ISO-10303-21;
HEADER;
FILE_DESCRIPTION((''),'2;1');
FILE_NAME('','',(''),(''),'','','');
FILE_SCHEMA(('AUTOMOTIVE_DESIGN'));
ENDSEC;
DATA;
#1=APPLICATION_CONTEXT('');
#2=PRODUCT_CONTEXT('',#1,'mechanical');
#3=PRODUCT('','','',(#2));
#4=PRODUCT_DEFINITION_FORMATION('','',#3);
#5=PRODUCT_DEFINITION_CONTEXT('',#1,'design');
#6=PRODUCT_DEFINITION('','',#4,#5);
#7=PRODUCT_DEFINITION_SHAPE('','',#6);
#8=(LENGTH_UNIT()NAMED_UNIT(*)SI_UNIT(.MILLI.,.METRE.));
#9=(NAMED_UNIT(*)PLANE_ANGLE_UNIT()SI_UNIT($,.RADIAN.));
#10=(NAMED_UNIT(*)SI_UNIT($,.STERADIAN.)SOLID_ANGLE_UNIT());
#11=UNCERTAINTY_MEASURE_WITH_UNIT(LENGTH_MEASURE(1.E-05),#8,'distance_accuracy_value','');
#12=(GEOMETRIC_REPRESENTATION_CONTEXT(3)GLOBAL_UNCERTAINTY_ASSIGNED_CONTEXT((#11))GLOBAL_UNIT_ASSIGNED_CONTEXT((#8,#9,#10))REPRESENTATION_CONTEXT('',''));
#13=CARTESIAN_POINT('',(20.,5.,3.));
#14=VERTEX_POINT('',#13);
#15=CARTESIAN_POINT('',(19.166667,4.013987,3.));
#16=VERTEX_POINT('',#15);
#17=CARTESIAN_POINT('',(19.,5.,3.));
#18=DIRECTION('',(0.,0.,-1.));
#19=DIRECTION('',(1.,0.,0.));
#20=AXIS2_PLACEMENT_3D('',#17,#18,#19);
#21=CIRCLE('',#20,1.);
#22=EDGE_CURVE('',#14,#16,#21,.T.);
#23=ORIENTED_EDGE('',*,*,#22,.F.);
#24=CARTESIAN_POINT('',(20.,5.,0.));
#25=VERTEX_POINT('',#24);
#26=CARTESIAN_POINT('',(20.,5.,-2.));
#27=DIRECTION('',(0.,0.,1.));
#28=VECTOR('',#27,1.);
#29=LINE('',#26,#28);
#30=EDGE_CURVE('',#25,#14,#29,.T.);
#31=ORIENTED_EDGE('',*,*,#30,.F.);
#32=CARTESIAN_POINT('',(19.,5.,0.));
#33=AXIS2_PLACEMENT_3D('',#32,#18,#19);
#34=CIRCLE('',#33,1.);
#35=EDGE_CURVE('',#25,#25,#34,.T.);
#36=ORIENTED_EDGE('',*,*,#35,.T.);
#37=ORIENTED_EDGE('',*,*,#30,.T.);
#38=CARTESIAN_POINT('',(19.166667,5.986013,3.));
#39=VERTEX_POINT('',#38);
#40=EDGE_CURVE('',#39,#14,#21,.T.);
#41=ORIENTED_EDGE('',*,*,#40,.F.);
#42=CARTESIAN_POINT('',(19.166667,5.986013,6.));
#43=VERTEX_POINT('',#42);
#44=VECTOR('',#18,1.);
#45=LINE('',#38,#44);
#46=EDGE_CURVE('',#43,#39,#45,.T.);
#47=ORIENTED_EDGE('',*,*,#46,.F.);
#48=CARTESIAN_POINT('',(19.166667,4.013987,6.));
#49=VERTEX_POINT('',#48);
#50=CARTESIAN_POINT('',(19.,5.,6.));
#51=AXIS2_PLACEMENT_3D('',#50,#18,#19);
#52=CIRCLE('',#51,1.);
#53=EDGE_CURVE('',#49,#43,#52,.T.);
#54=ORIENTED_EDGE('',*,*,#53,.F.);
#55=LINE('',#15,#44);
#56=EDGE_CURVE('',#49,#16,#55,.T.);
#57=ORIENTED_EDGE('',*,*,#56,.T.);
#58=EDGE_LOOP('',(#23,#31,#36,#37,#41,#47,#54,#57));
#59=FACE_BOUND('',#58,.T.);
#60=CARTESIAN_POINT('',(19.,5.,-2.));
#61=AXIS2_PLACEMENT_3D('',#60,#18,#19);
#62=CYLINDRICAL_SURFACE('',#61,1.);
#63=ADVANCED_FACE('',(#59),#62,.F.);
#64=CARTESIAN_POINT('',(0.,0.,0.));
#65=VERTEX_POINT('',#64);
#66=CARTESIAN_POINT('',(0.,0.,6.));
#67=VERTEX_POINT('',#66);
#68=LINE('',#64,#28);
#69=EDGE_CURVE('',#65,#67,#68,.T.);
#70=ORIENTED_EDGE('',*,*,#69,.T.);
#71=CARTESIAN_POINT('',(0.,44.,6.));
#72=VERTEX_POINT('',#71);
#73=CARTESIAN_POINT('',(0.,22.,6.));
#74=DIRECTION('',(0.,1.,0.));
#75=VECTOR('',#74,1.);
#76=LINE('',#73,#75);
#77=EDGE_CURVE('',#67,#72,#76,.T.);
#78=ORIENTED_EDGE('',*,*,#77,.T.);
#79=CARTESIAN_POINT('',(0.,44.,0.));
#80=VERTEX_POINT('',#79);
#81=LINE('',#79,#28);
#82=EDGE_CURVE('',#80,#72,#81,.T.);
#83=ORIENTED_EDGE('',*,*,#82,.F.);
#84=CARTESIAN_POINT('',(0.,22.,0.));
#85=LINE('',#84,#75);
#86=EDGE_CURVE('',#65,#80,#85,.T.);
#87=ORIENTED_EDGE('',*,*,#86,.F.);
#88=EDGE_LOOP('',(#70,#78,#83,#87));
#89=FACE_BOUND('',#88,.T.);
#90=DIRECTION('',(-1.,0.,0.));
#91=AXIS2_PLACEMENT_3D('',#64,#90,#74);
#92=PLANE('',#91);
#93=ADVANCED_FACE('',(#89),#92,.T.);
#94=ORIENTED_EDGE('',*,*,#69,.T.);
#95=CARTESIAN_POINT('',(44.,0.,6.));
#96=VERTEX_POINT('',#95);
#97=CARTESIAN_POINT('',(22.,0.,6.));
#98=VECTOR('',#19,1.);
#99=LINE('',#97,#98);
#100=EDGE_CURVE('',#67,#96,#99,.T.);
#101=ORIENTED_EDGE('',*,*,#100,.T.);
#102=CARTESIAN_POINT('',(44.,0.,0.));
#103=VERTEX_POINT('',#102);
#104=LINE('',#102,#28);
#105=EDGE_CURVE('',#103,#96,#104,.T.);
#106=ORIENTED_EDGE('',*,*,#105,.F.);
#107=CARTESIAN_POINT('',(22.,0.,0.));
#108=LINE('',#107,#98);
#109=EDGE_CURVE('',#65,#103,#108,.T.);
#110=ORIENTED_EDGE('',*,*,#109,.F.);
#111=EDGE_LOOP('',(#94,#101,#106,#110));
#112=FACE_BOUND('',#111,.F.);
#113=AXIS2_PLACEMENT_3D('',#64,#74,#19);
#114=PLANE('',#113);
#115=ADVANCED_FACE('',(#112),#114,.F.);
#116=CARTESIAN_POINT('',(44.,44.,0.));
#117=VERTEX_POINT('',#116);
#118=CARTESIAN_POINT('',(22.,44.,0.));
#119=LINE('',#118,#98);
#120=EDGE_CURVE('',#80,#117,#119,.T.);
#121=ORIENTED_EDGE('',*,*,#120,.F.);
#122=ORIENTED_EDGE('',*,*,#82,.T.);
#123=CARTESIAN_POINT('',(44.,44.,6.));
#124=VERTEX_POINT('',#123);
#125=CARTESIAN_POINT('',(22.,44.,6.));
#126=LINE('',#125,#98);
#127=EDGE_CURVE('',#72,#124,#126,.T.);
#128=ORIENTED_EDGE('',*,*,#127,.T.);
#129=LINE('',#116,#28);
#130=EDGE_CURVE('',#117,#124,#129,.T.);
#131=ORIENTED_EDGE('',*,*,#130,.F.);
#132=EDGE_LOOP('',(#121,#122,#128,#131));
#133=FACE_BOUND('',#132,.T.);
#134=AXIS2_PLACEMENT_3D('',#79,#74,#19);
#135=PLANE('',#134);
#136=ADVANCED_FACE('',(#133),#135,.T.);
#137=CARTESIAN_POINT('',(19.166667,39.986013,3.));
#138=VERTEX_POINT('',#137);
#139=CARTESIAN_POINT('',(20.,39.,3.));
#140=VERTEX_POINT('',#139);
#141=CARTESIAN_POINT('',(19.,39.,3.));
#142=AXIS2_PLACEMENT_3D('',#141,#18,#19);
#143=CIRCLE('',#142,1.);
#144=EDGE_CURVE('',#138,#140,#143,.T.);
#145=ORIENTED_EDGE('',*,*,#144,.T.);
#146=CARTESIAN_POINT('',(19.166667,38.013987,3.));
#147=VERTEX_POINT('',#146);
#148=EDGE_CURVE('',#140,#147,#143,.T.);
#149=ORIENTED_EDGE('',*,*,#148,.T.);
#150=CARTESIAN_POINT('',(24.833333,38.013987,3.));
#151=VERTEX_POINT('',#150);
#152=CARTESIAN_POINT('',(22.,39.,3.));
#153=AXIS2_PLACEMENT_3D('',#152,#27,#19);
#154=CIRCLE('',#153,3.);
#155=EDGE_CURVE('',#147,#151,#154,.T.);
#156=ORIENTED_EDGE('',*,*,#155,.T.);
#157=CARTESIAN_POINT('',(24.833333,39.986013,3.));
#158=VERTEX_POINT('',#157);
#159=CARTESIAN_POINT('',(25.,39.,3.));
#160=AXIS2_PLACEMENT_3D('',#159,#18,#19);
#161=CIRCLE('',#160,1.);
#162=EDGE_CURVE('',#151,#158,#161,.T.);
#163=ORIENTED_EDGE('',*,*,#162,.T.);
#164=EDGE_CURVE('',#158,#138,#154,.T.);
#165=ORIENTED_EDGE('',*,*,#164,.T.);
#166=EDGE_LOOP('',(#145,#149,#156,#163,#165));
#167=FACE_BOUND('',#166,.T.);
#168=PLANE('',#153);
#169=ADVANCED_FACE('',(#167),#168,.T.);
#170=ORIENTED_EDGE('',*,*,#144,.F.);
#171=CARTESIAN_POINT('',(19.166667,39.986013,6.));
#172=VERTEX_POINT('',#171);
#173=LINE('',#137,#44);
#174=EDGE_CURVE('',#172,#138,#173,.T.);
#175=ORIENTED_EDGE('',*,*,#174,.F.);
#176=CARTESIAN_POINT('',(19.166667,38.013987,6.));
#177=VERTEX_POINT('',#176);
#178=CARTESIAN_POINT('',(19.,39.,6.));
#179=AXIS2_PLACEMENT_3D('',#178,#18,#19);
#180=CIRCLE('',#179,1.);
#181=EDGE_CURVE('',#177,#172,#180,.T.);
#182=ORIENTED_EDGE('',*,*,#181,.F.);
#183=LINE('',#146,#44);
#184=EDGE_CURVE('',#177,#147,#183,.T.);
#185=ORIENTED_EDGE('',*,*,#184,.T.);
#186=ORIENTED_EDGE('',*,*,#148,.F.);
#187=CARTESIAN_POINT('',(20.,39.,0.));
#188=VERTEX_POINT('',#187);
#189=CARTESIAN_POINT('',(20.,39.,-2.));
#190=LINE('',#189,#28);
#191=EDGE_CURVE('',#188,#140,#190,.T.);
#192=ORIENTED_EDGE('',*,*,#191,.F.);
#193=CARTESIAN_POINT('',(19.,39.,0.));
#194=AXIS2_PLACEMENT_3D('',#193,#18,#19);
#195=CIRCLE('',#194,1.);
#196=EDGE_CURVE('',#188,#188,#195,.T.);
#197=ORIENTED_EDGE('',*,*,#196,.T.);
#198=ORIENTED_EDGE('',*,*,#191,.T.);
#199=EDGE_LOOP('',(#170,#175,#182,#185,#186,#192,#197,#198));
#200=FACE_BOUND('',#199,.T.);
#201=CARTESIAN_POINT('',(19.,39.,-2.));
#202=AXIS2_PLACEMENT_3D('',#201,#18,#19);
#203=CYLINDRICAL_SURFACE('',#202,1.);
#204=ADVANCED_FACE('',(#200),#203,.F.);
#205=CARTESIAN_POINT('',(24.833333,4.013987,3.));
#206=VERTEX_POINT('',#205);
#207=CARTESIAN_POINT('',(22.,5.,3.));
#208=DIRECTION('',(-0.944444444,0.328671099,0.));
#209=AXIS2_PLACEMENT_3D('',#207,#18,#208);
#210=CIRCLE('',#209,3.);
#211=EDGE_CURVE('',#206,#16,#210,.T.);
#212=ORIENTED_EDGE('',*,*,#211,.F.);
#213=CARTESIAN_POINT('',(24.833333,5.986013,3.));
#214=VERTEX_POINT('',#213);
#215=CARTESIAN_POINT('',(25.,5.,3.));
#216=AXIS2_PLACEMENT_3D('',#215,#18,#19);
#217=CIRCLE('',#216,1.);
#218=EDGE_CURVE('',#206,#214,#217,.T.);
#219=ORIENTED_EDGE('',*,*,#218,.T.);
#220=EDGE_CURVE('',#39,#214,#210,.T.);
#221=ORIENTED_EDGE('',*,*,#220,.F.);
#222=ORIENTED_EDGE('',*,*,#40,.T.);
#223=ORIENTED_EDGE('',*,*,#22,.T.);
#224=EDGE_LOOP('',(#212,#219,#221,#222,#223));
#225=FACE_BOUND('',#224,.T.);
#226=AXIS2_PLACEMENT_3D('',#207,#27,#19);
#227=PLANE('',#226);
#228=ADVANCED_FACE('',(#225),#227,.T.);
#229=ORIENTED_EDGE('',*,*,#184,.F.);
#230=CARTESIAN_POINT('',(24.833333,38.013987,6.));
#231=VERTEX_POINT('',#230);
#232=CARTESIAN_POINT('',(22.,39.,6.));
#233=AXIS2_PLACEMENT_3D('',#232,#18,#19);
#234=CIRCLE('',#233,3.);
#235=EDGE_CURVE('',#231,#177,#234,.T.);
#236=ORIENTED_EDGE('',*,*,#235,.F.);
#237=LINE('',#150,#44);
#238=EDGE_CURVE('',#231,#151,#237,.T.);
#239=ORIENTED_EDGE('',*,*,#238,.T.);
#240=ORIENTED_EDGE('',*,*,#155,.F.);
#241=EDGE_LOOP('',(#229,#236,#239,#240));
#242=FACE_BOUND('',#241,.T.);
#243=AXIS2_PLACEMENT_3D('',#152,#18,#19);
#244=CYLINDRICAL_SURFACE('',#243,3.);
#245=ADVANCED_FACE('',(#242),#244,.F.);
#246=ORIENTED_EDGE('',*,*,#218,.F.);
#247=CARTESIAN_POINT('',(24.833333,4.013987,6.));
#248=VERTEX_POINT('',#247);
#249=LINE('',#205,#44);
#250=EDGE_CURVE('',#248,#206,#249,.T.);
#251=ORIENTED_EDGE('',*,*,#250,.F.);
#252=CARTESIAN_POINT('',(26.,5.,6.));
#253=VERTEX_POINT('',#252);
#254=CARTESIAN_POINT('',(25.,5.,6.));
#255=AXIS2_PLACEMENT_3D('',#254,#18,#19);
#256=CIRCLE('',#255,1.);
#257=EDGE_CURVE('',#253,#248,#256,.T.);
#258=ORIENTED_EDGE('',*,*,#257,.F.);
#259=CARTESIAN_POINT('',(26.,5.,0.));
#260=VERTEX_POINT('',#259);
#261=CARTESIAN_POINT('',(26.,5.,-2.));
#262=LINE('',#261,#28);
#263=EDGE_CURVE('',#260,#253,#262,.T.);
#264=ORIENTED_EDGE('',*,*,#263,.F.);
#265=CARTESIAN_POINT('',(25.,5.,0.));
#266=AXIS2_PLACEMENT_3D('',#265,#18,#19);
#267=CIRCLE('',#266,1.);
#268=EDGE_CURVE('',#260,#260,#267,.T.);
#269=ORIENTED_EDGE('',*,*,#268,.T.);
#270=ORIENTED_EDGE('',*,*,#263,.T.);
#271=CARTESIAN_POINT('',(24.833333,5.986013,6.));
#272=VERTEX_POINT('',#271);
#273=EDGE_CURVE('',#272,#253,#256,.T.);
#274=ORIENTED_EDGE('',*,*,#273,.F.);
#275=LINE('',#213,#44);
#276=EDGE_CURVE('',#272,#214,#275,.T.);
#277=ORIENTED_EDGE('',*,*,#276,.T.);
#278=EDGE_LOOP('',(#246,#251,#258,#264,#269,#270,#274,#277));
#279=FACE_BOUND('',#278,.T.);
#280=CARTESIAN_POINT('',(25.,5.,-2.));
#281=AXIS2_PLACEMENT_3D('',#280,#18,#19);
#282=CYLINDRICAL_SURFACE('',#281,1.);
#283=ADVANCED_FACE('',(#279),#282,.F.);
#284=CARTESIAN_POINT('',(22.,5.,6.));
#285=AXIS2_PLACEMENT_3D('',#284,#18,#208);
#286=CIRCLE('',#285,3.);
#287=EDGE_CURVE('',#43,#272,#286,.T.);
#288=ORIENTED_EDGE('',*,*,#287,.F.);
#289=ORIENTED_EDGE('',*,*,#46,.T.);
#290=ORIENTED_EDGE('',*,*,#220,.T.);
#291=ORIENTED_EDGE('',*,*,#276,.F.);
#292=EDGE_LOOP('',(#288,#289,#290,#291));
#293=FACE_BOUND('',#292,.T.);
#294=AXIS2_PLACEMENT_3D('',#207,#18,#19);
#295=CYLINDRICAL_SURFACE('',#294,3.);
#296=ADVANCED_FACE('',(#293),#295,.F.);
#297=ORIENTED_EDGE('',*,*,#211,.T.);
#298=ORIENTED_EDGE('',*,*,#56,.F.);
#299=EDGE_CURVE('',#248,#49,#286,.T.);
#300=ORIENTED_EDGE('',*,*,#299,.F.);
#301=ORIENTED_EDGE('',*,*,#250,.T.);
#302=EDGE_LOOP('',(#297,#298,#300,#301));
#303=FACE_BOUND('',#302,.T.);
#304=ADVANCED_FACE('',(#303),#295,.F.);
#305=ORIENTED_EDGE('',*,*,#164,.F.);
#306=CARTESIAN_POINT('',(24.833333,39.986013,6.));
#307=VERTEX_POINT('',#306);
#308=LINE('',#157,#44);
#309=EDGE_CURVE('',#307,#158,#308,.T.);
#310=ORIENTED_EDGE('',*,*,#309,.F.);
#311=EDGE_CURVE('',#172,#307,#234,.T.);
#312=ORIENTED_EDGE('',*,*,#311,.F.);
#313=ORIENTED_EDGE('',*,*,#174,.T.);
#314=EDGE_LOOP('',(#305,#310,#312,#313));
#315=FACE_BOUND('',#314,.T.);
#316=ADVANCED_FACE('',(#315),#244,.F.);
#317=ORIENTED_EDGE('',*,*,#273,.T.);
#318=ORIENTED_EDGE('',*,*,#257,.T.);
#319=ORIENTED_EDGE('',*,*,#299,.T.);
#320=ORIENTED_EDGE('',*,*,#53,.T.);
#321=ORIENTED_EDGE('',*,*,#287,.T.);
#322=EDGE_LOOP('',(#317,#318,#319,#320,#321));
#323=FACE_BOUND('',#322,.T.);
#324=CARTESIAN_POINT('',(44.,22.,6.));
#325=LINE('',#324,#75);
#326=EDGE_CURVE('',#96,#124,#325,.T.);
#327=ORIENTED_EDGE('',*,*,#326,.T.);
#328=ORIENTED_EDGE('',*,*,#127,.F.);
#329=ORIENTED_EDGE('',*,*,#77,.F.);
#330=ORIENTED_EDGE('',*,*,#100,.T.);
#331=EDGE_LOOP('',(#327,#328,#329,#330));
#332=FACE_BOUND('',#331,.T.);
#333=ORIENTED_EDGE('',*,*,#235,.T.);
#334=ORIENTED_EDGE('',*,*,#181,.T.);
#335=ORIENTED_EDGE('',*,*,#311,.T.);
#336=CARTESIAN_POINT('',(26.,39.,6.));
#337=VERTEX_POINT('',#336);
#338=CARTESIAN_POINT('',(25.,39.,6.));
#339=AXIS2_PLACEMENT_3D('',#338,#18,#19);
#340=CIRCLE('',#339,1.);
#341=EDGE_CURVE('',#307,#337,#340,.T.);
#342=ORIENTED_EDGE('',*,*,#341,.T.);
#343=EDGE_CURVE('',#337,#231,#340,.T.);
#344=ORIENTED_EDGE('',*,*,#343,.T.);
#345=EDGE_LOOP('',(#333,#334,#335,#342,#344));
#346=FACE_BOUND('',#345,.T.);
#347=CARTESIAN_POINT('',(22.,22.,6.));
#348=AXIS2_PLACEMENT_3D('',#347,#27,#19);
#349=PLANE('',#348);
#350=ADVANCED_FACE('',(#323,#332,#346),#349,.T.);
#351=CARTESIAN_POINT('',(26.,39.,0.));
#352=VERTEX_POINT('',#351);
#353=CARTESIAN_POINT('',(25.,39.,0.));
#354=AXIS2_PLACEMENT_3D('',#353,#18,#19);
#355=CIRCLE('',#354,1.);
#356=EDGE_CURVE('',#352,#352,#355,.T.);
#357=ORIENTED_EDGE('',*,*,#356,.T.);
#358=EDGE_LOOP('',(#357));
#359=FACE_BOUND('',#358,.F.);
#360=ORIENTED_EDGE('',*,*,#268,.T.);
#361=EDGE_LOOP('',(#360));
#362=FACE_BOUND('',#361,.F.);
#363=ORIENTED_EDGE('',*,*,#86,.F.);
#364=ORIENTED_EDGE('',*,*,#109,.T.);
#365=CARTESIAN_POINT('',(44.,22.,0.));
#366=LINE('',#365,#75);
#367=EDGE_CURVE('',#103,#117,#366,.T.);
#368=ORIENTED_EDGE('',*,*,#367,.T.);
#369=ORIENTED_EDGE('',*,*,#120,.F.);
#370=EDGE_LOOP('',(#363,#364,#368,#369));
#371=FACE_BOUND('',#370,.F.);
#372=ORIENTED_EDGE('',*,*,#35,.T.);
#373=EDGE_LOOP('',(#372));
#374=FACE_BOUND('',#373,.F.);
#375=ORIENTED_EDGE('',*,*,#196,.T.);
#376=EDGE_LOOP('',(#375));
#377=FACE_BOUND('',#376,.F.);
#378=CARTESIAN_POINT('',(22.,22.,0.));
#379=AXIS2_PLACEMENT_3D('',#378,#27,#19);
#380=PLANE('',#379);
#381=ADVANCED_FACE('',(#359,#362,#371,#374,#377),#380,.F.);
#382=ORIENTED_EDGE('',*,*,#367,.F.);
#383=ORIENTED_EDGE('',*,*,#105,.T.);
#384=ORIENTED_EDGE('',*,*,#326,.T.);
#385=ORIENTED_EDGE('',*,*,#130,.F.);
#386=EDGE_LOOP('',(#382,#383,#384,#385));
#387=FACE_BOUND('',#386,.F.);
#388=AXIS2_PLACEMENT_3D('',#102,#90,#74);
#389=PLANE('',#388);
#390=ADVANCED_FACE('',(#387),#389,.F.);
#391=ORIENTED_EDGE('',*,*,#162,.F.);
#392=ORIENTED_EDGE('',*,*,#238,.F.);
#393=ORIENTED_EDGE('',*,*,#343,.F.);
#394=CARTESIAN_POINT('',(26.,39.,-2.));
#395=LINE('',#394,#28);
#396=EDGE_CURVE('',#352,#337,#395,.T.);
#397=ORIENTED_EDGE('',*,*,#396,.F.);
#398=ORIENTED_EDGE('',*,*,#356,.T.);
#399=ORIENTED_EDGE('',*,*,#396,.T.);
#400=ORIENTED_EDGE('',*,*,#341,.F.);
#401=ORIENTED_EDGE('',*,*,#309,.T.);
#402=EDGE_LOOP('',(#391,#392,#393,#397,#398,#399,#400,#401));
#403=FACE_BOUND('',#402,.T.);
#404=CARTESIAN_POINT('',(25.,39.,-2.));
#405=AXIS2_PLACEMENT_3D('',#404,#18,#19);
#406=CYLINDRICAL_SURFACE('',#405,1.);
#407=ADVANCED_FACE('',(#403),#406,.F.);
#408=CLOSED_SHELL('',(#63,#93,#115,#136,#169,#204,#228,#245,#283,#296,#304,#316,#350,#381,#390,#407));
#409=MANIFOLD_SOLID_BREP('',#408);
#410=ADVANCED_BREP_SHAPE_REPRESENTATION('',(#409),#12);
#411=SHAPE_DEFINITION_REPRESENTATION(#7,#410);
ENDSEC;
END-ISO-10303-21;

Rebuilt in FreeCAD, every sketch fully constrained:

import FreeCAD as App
import Part
import Sketcher

V = App.Vector
Q = App.Units.Quantity


def add_polygon(sketch, points):
    """Adds a closed chain of lines whose ends are joined by coincident constraints."""
    first, n = sketch.GeometryCount, len(points)
    for a, b in zip(points, points[1:] + points[:1]):
        sketch.addGeometry(Part.LineSegment(App.Vector(*a, 0), App.Vector(*b, 0)), False)
    for i in range(n):
        sketch.addConstraint(Sketcher.Constraint("Coincident", first + i, 2, first + (i + 1) % n, 1))

doc = App.newDocument("Part")
body = doc.addObject("PartDesign::Body", "Body")

# Sketch on XY plane
sketch1 = body.newObject("Sketcher::SketchObject", "Sketch")
sketch1.AttachmentSupport = (doc.getObject("XY_Plane"), [""])
sketch1.MapMode = "FlatFace"
sketch1.AttachmentOffset = App.Placement(V(0, 0, -2), App.Rotation())
sketch1.addGeometry(Part.Circle(V(19, 39, 0), V(0, 0, 1), 1), False)
sketch1.addConstraint([
    Sketcher.Constraint("Diameter", 0, Q("2 mm")),
    Sketcher.Constraint("DistanceX", -1, 1, 0, 3, Q("19 mm")),
    Sketcher.Constraint("DistanceY", -1, 1, 0, 3, Q("39 mm")),
])
pad1 = body.newObject("PartDesign::Pad", "Pad")
pad1.Profile = sketch1
pad1.Length = 10
body2 = doc.addObject("PartDesign::Body", "Body001")

# Sketch on XY plane
sketch2 = body2.newObject("Sketcher::SketchObject", "Sketch001")
sketch2.AttachmentSupport = (doc.getObject("XY_Plane001"), [""])
sketch2.MapMode = "FlatFace"
sketch2.AttachmentOffset = App.Placement(V(0, 0, -2), App.Rotation())
sketch2.addGeometry(Part.Circle(V(25, 39, 0), V(0, 0, 1), 1), False)
sketch2.addConstraint([
    Sketcher.Constraint("Diameter", 0, Q("2 mm")),
    Sketcher.Constraint("DistanceX", -1, 1, 0, 3, Q("25 mm")),
    Sketcher.Constraint("DistanceY", -1, 1, 0, 3, Q("39 mm")),
])
pad2 = body2.newObject("PartDesign::Pad", "Pad001")
pad2.Profile = sketch2
pad2.Length = 10
body3 = doc.addObject("PartDesign::Body", "Body002")

# Sketch on XY plane
sketch3 = body3.newObject("Sketcher::SketchObject", "Sketch002")
sketch3.AttachmentSupport = (doc.getObject("XY_Plane002"), [""])
sketch3.MapMode = "FlatFace"
sketch3.AttachmentOffset = App.Placement(V(0, 0, -2), App.Rotation())
sketch3.addGeometry(Part.Circle(V(25, 5, 0), V(0, 0, 1), 1), False)
sketch3.addConstraint([
    Sketcher.Constraint("Diameter", 0, Q("2 mm")),
    Sketcher.Constraint("DistanceX", -1, 1, 0, 3, Q("25 mm")),
    Sketcher.Constraint("DistanceY", -1, 1, 0, 3, Q("5 mm")),
])
pad3 = body3.newObject("PartDesign::Pad", "Pad002")
pad3.Profile = sketch3
pad3.Length = 10
body4 = doc.addObject("PartDesign::Body", "Body003")

# Sketch on XY plane
sketch4 = body4.newObject("Sketcher::SketchObject", "Sketch003")
sketch4.AttachmentSupport = (doc.getObject("XY_Plane003"), [""])
sketch4.MapMode = "FlatFace"
sketch4.AttachmentOffset = App.Placement(V(0, 0, -2), App.Rotation())
sketch4.addGeometry(Part.Circle(V(19, 5, 0), V(0, 0, 1), 1), False)
sketch4.addConstraint([
    Sketcher.Constraint("Diameter", 0, Q("2 mm")),
    Sketcher.Constraint("DistanceX", -1, 1, 0, 3, Q("19 mm")),
    Sketcher.Constraint("DistanceY", -1, 1, 0, 3, Q("5 mm")),
])
pad4 = body4.newObject("PartDesign::Pad", "Pad003")
pad4.Profile = sketch4
pad4.Length = 10
body5 = doc.addObject("PartDesign::Body", "Body004")

# Sketch on XY plane
sketch5 = body5.newObject("Sketcher::SketchObject", "Sketch004")
sketch5.AttachmentSupport = (doc.getObject("XY_Plane004"), [""])
sketch5.MapMode = "FlatFace"
sketch5.AttachmentOffset = App.Placement(V(0, 0, 3), App.Rotation())
sketch5.addGeometry(Part.Circle(V(22, 5, 0), V(0, 0, 1), 3), False)
sketch5.addConstraint([
    Sketcher.Constraint("Diameter", 0, Q("6 mm")),
    Sketcher.Constraint("DistanceX", -1, 1, 0, 3, Q("22 mm")),
    Sketcher.Constraint("DistanceY", -1, 1, 0, 3, Q("5 mm")),
])
pad5 = body5.newObject("PartDesign::Pad", "Pad004")
pad5.Profile = sketch5
pad5.Length = 10
body6 = doc.addObject("PartDesign::Body", "Body005")

# Sketch on XY plane
sketch6 = body6.newObject("Sketcher::SketchObject", "Sketch005")
sketch6.AttachmentSupport = (doc.getObject("XY_Plane005"), [""])
sketch6.MapMode = "FlatFace"
sketch6.AttachmentOffset = App.Placement(V(0, 0, 3), App.Rotation())
sketch6.addGeometry(Part.Circle(V(22, 39, 0), V(0, 0, 1), 3), False)
sketch6.addConstraint([
    Sketcher.Constraint("Diameter", 0, Q("6 mm")),
    Sketcher.Constraint("DistanceX", -1, 1, 0, 3, Q("22 mm")),
    Sketcher.Constraint("DistanceY", -1, 1, 0, 3, Q("39 mm")),
])
pad6 = body6.newObject("PartDesign::Pad", "Pad005")
pad6.Profile = sketch6
pad6.Length = 10
body7 = doc.addObject("PartDesign::Body", "Body006")

# Sketch on XY plane
sketch7 = body7.newObject("Sketcher::SketchObject", "Sketch006")
sketch7.AttachmentSupport = (doc.getObject("XY_Plane006"), [""])
sketch7.MapMode = "FlatFace"
add_polygon(sketch7, [(0, 44), (0, 0), (44, 0), (44, 44)])  # lines 0-3
sketch7.addConstraint([
    Sketcher.Constraint("Vertical", 0),
    Sketcher.Constraint("Horizontal", 1),
    Sketcher.Constraint("Vertical", 2),
    Sketcher.Constraint("Horizontal", 3),
    Sketcher.Constraint("Coincident", 0, 2, -1, 1),
    Sketcher.Constraint("Equal", 3, 0),
    Sketcher.Constraint("DistanceX", 1, 1, 1, 2, Q("44 mm")),
])
pad7 = body7.newObject("PartDesign::Pad", "Pad006")
pad7.Profile = sketch7
pad7.Length = 6
doc.recompute()

boolean = body7.newObject("PartDesign::Boolean", "Boolean")
boolean.Type = "Cut"
boolean.addObjects([body6])
doc.recompute()

boolean2 = body7.newObject("PartDesign::Boolean", "Boolean001")
boolean2.Type = "Cut"
boolean2.addObjects([body5])
doc.recompute()

boolean3 = body7.newObject("PartDesign::Boolean", "Boolean002")
boolean3.Type = "Cut"
boolean3.addObjects([body4])
doc.recompute()

boolean4 = body7.newObject("PartDesign::Boolean", "Boolean003")
boolean4.Type = "Cut"
boolean4.addObjects([body3])
doc.recompute()

boolean5 = body7.newObject("PartDesign::Boolean", "Boolean004")
boolean5.Type = "Cut"
boolean5.addObjects([body2])
doc.recompute()

boolean6 = body7.newObject("PartDesign::Boolean", "Boolean005")
boolean6.Type = "Cut"
boolean6.addObjects([body])

doc.recompute()
